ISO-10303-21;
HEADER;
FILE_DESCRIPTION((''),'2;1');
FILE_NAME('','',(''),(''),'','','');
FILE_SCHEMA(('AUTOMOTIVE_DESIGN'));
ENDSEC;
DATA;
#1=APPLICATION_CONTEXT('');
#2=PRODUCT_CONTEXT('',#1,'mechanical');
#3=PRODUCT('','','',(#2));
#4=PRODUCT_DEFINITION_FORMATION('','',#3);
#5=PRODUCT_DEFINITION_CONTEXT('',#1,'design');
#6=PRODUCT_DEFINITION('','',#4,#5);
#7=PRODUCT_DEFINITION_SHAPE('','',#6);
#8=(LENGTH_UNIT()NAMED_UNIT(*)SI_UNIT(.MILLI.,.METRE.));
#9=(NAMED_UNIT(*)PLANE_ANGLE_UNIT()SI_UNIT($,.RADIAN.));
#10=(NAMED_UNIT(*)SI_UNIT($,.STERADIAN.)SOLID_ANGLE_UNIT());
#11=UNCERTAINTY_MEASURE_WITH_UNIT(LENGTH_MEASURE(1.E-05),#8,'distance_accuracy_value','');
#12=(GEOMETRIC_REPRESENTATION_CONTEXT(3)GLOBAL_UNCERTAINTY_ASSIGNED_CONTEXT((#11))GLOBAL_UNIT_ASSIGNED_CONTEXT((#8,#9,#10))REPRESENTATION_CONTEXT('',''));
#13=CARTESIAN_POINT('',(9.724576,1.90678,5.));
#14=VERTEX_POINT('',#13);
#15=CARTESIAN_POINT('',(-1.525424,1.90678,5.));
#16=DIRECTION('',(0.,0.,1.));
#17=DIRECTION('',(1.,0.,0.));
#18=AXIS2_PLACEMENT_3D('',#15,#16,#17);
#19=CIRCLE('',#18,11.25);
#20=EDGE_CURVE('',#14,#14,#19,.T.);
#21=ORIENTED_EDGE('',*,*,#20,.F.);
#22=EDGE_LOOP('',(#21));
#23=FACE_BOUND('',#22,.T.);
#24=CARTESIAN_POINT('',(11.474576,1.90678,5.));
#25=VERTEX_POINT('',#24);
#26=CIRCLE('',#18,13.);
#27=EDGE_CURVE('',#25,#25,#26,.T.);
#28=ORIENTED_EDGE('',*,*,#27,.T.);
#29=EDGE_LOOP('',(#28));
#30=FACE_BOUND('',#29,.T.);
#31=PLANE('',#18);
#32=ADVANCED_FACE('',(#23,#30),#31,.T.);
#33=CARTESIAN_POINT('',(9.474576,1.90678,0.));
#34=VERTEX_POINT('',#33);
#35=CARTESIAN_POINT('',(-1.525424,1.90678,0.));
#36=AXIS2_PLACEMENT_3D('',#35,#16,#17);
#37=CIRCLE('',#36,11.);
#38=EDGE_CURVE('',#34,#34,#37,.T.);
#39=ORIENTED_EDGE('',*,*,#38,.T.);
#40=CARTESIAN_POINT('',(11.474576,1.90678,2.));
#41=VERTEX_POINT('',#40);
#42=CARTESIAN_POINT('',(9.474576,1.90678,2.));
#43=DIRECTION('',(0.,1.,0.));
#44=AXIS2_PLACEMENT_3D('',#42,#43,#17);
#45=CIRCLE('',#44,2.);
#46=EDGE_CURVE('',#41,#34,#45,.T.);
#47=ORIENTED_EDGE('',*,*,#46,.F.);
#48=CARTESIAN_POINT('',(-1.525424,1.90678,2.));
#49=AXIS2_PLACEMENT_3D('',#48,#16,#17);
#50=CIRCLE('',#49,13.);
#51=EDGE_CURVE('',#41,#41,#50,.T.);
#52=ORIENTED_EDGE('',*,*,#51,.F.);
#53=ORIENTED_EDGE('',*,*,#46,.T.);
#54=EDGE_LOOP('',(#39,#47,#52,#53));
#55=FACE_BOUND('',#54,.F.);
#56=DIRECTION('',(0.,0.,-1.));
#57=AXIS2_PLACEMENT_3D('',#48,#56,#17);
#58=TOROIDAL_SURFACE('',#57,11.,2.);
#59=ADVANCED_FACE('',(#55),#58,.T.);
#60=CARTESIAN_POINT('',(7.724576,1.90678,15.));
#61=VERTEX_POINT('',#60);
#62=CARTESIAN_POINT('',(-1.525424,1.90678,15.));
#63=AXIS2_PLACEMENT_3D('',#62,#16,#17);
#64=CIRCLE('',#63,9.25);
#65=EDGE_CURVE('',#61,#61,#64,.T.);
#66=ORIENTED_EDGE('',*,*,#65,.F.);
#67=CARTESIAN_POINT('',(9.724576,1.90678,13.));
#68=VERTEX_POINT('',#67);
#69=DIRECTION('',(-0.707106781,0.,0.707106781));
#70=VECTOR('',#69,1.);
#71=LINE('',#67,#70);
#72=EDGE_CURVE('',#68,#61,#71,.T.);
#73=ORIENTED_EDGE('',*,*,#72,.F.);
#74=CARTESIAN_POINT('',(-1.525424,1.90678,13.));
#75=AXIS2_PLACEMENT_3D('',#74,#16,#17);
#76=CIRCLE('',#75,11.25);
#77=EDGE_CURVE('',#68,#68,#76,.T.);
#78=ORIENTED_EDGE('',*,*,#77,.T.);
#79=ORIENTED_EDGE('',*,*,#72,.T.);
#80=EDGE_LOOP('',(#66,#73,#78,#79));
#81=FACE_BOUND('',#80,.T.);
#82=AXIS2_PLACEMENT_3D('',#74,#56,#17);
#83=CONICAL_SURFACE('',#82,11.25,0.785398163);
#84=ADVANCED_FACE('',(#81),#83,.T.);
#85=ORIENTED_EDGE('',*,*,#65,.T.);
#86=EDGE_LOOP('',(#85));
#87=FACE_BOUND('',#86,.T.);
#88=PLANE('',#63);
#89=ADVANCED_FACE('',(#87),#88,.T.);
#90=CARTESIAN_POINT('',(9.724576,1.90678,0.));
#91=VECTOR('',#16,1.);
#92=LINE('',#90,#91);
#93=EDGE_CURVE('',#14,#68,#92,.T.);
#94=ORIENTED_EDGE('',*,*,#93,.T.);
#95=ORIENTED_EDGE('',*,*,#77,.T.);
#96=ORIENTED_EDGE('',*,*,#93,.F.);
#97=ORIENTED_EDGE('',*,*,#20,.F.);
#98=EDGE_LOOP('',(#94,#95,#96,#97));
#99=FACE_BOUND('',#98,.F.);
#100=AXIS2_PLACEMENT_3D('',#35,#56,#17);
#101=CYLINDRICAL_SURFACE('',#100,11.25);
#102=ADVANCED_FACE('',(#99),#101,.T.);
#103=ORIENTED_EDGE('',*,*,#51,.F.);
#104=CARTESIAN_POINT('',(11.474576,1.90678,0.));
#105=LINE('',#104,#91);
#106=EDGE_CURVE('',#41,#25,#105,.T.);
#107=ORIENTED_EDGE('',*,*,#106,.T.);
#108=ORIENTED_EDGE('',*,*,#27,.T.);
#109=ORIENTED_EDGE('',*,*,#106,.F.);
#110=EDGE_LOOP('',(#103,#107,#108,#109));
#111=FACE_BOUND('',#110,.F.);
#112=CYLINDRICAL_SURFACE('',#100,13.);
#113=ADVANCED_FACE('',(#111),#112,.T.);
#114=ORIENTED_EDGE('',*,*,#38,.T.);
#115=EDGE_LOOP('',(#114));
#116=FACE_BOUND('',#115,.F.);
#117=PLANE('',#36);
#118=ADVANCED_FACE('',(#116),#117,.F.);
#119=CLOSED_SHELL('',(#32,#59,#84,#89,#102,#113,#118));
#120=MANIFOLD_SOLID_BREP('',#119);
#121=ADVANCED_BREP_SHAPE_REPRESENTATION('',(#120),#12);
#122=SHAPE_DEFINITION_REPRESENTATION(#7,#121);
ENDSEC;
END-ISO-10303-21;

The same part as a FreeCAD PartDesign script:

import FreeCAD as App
import Part
import Sketcher
from FreeCAD import Vector
Q = App.Units.Quantity


def edges_at(feature, points):
    """Names of the edges that pass closest to the given points."""
    edges = feature.Shape.Edges
    near = lambda p: min(range(len(edges)), key=lambda i: edges[i].distToShape(Part.Vertex(*p))[0])
    return sorted({f"Edge{near(p) + 1}" for p in points})

doc = App.newDocument("Part")
body = doc.addObject("PartDesign::Body", "Body")

# Sketch on XY plane
sketch1 = body.newObject("Sketcher::SketchObject", "Sketch")
sketch1.AttachmentSupport = (doc.getObject("XY_Plane"), [""])
sketch1.MapMode = "FlatFace"
sketch1.addGeometry([
    Part.Circle(Vector(-2, 2, 0), Vector(0, 0, 1), 13),
    Part.Circle(Vector(-2, 2, 0), Vector(0, 0, 1), 11),
], False)
sketch1.addConstraint([
    Sketcher.Constraint("Coincident", 1, 3, 0, 3),
    Sketcher.Constraint("Diameter", 0, Q("26 mm")),
    Sketcher.Constraint("Diameter", 1, Q("22.5 mm")),
    Sketcher.Constraint("DistanceY", -1, 1, 0, 3, Q("1.90678 mm")),
    Sketcher.Constraint("DistanceX", 0, 3, -1, 1, Q("1.525424 mm")),
])
pad1 = body.newObject("PartDesign::Pad", "Pad")
pad1.Profile = sketch1
pad1.Length = 5

# Sketch on XY plane
sketch2 = body.newObject("Sketcher::SketchObject", "Sketch001")
sketch2.AttachmentSupport = (doc.getObject("XY_Plane"), [""])
sketch2.MapMode = "FlatFace"
sketch2.addGeometry(Part.Circle(Vector(-2, 2, 0), Vector(0, 0, 1), 11), False)
sketch2.addConstraint([
    Sketcher.Constraint("Diameter", 0, Q("22.5 mm")),
    Sketcher.Constraint("DistanceY", -1, 1, 0, 3, Q("1.90678 mm")),
    Sketcher.Constraint("DistanceX", 0, 3, -1, 1, Q("1.525424 mm")),
])
pad2 = body.newObject("PartDesign::Pad", "Pad001")
pad2.Profile = sketch2
pad2.Length = 15
doc.recompute()

chamfer = body.newObject("PartDesign::Chamfer", "Chamfer")
chamfer.Base = (pad2, edges_at(pad2, [(-12.775, 1.907, 15)]))
chamfer.Size = 2
doc.recompute()

fillet = body.newObject("PartDesign::Fillet", "Fillet")
fillet.Base = (chamfer, edges_at(chamfer, [(-14.525, 1.907, 0)]))
fillet.Radius = 2

doc.recompute()
